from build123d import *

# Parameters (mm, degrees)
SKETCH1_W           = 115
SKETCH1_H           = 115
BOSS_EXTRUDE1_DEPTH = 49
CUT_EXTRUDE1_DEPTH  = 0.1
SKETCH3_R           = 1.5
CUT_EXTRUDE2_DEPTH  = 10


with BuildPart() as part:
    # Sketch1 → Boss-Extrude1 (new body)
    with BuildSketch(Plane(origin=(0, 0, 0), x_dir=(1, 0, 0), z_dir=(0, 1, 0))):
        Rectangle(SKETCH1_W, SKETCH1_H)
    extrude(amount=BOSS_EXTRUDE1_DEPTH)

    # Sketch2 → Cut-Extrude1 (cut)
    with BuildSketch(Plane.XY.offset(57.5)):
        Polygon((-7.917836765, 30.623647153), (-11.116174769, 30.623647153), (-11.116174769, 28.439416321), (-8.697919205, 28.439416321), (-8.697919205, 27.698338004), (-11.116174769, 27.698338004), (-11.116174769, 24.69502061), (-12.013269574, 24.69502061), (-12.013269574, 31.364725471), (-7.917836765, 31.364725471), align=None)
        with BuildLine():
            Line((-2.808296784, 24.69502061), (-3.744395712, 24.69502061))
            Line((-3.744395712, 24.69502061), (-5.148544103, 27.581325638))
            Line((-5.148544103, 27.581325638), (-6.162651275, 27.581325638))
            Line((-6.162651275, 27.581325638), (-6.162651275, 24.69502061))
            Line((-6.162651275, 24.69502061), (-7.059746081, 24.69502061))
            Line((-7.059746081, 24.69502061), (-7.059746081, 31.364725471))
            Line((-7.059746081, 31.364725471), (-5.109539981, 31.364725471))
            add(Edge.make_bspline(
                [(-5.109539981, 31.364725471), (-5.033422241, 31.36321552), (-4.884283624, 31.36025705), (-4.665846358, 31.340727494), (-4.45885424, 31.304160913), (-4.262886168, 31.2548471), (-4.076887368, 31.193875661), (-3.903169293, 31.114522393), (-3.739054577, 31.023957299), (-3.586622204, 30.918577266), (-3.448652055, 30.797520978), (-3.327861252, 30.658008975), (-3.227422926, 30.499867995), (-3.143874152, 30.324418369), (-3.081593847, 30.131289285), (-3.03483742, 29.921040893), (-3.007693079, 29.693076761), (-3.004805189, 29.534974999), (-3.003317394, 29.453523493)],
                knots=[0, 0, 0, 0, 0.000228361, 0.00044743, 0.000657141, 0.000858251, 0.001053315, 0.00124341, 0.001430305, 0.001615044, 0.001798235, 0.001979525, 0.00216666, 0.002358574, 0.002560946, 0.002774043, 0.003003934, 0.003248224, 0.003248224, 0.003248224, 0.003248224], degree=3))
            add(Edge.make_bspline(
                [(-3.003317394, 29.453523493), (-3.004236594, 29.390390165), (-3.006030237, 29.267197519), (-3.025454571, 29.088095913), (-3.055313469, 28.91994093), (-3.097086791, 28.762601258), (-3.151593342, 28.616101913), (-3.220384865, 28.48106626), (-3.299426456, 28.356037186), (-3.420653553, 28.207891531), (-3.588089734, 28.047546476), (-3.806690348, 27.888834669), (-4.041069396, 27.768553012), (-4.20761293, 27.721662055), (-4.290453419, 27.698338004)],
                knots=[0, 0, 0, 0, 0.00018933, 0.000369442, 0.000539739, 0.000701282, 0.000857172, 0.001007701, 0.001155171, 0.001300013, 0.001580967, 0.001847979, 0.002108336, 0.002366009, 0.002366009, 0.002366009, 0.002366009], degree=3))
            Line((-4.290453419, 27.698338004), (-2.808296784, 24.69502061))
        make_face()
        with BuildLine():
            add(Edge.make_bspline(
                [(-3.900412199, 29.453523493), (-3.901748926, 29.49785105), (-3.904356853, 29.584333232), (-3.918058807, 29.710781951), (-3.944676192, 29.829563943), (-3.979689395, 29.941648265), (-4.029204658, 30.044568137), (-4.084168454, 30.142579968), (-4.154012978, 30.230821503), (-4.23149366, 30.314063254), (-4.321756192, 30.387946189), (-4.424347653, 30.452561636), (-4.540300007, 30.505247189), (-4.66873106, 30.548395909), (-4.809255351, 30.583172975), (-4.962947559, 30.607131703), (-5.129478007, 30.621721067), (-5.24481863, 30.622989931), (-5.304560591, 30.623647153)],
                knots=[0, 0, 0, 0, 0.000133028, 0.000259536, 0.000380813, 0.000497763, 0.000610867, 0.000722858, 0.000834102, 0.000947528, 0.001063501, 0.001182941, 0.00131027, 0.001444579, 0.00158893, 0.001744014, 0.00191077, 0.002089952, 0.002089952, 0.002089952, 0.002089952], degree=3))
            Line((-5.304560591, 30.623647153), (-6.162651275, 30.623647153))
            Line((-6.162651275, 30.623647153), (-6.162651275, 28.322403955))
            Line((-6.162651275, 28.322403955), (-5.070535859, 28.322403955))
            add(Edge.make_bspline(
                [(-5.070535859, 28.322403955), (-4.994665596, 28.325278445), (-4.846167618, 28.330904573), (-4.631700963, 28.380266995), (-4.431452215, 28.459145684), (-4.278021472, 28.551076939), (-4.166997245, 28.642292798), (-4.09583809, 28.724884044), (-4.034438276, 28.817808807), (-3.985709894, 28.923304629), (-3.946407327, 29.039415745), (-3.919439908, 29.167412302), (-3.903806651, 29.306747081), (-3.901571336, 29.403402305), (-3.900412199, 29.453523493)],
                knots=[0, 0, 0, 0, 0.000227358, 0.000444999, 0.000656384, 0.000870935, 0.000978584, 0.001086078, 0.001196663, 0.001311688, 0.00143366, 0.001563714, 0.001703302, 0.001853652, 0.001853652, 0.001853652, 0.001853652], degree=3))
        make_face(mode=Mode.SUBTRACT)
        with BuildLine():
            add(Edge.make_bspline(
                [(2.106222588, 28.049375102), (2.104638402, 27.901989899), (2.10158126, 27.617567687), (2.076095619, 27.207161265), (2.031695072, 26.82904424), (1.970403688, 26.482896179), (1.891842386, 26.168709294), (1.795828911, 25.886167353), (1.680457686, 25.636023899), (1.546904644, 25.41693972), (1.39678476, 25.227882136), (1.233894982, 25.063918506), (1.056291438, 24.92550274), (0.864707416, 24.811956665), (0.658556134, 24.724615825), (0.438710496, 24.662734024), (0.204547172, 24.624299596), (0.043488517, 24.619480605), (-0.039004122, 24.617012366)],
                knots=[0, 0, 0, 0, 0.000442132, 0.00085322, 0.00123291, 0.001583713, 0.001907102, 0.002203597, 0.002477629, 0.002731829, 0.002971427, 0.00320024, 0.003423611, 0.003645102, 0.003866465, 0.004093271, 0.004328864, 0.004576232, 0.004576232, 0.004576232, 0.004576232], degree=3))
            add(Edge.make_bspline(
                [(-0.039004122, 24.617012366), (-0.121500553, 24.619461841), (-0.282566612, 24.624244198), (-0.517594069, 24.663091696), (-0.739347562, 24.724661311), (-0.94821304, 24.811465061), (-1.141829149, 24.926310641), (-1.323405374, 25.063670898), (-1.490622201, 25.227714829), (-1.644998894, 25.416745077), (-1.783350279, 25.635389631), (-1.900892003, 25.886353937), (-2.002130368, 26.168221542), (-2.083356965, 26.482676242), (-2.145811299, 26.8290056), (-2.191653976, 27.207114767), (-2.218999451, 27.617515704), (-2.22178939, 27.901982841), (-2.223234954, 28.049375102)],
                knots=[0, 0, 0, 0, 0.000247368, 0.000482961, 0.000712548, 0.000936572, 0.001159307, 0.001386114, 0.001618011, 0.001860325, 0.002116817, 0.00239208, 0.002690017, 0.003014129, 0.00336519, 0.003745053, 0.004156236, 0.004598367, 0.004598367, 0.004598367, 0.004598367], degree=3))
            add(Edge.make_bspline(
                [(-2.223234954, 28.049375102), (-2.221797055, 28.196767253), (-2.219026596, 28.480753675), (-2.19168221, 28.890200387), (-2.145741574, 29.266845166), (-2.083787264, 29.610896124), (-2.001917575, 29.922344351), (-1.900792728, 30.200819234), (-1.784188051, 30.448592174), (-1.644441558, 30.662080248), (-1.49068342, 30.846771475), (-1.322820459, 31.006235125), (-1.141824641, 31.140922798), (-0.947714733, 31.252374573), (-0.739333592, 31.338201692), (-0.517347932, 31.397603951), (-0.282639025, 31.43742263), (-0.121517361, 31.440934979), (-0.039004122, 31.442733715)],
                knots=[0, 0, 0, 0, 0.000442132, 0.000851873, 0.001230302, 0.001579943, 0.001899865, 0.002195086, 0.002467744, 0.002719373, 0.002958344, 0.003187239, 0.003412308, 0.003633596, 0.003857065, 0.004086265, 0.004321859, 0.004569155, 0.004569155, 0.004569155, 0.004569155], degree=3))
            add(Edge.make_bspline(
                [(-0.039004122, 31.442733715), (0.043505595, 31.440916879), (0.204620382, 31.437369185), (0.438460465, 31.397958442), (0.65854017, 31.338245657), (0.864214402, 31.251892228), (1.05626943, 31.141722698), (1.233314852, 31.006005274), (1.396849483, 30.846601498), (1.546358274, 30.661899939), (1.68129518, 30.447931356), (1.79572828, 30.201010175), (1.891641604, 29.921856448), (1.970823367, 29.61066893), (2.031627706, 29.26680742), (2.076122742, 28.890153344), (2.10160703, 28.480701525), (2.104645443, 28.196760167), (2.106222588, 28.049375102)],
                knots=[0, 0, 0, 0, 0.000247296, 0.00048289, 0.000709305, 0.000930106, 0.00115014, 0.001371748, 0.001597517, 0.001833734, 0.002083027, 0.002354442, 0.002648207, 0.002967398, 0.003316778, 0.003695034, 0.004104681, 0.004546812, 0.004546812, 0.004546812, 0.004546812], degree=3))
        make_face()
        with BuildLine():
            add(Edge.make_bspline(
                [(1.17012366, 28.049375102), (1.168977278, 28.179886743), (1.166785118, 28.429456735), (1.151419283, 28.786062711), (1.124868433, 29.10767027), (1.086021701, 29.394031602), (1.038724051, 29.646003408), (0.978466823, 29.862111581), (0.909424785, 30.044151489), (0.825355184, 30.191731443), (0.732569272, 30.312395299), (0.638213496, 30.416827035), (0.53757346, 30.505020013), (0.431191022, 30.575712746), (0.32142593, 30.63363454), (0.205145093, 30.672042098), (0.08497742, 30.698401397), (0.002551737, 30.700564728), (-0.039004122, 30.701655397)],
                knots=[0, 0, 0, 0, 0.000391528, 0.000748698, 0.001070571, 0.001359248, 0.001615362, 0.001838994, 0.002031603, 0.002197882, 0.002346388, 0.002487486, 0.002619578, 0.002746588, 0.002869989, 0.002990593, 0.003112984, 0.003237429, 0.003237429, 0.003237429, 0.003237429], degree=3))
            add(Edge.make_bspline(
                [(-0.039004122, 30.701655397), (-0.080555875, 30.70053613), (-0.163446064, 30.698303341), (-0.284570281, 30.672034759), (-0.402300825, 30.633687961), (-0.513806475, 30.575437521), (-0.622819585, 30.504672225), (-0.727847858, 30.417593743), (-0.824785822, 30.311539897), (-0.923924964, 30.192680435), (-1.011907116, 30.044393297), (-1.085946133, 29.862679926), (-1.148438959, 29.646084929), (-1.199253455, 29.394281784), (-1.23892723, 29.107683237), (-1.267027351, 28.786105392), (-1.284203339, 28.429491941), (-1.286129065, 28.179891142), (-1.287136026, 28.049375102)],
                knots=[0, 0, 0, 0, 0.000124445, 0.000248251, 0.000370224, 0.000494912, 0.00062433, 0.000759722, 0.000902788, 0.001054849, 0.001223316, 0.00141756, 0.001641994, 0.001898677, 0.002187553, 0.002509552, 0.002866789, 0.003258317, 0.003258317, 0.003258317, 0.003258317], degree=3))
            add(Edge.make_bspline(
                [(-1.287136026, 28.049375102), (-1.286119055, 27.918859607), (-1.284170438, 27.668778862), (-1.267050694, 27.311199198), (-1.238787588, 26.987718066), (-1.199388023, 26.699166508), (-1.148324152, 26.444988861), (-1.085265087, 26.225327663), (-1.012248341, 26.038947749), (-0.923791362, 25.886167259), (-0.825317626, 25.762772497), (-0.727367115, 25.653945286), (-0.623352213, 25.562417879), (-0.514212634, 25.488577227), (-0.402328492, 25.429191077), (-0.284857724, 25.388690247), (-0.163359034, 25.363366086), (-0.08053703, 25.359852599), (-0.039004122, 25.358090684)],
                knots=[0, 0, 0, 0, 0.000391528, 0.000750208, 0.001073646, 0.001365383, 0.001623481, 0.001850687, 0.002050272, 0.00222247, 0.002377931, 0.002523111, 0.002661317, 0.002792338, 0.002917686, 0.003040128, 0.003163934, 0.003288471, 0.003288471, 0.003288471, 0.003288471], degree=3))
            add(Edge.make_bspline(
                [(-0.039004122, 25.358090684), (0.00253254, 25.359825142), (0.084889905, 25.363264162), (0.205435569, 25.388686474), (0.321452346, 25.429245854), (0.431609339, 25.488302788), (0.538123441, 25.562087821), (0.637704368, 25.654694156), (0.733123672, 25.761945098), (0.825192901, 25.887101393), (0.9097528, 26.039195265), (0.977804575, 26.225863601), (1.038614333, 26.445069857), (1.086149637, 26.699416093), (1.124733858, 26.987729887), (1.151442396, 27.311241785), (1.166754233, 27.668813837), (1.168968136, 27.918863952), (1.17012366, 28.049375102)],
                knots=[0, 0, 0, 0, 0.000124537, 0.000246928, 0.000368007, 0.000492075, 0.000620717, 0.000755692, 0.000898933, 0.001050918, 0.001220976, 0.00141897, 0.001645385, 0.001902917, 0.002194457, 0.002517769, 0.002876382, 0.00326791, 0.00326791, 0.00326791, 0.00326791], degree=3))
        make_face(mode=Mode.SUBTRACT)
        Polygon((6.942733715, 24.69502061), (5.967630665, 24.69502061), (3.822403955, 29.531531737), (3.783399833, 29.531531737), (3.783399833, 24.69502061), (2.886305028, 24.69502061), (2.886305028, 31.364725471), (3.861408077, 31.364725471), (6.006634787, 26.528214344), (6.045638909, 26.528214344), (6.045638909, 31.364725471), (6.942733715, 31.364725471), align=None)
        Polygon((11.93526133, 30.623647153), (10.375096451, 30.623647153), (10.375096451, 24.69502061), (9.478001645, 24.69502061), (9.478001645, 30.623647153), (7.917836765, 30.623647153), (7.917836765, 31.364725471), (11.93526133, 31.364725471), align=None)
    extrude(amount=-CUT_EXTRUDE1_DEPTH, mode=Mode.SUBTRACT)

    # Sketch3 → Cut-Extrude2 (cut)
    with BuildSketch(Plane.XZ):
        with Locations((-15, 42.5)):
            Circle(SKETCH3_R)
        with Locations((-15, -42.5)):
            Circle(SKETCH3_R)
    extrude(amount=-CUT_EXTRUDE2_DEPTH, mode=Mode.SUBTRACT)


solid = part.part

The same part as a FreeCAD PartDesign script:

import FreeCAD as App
import Part
import Sketcher
from FreeCAD import Vector
Q = App.Units.Quantity

doc = App.newDocument("Part")
body = doc.addObject("PartDesign::Body", "Body")

sketch1 = doc.addObject("Sketcher::SketchObject", "Sketch")
body.addObject(sketch1)
sketch1.AttachmentSupport = (doc.XZ_Plane, [""])
sketch1.MapMode = "FlatFace"
sketch1.addGeometry(Part.LineSegment(Vector(-57.5, -57.5, 0), Vector(-57.5, 57.5, 0)), False)
sketch1.addGeometry(Part.LineSegment(Vector(-57.5, 57.5, 0), Vector(57.5, 57.5, 0)), False)
sketch1.addGeometry(Part.LineSegment(Vector(57.5, 57.5, 0), Vector(57.5, -57.5, 0)), False)
sketch1.addGeometry(Part.LineSegment(Vector(57.5, -57.5, 0), Vector(-57.5, -57.5, 0)), False)
sketch1.addConstraint(Sketcher.Constraint("Coincident", 0, 2, 1, 1))
sketch1.addConstraint(Sketcher.Constraint("Coincident", 1, 2, 2, 1))
sketch1.addConstraint(Sketcher.Constraint("Coincident", 2, 2, 3, 1))
sketch1.addConstraint(Sketcher.Constraint("Coincident", 3, 2, 0, 1))
sketch1.addConstraint(Sketcher.Constraint("Vertical", 0))
sketch1.addConstraint(Sketcher.Constraint("Horizontal", 1))
sketch1.addConstraint(Sketcher.Constraint("Vertical", 2))
sketch1.addConstraint(Sketcher.Constraint("Horizontal", 3))
sketch1.addConstraint(Sketcher.Constraint("Symmetric", 0, 2, 2, 2, -1, 1))
sketch1.addConstraint(Sketcher.Constraint("Equal", 3, 0))
sketch1.addConstraint(Sketcher.Constraint("DistanceX", 1, 1, 1, 2, Q("115 mm")))
pad1 = doc.addObject("PartDesign::Pad", "Pad")
body.addObject(pad1)
pad1.Profile = sketch1
pad1.Length = 49
pad1.Reversed = True

sketch2 = doc.addObject("Sketcher::SketchObject", "Sketch001")
body.addObject(sketch2)
sketch2.AttachmentSupport = (doc.XY_Plane, [""])
sketch2.MapMode = "FlatFace"
sketch2.AttachmentOffset = App.Placement(Vector(0, 0, 57.5), App.Rotation())
sketch2.addGeometry(Part.LineSegment(Vector(-11.116175, 30.623647, 0), Vector(-7.917837, 30.623647, 0)), False)
sketch2.addGeometry(Part.LineSegment(Vector(-7.917837, 30.623647, 0), Vector(-7.917837, 31.364725, 0)), False)
sketch2.addGeometry(Part.LineSegment(Vector(-7.917837, 31.364725, 0), Vector(-12.01327, 31.364725, 0)), False)
sketch2.addGeometry(Part.LineSegment(Vector(-12.01327, 31.364725, 0), Vector(-12.01327, 24.695021, 0)), False)
sketch2.addGeometry(Part.LineSegment(Vector(-12.01327, 24.695021, 0), Vector(-11.116175, 24.695021, 0)), False)
sketch2.addGeometry(Part.LineSegment(Vector(-11.116175, 24.695021, 0), Vector(-11.116175, 27.698338, 0)), False)
sketch2.addGeometry(Part.LineSegment(Vector(-11.116175, 27.698338, 0), Vector(-8.697919, 27.698338, 0)), False)
sketch2.addGeometry(Part.LineSegment(Vector(-8.697919, 27.698338, 0), Vector(-8.697919, 28.439416, 0)), False)
sketch2.addGeometry(Part.LineSegment(Vector(-8.697919, 28.439416, 0), Vector(-11.116175, 28.439416, 0)), False)
sketch2.addGeometry(Part.LineSegment(Vector(-11.116175, 28.439416, 0), Vector(-11.116175, 30.623647, 0)), False)
sketch2.addGeometry(Part.LineSegment(Vector(-3.744396, 24.695021, 0), Vector(-2.808297, 24.695021, 0)), False)
sketch2.addGeometry(Part.LineSegment(Vector(-2.808297, 24.695021, 0), Vector(-4.290453, 27.698338, 0)), False)
sketch2.addGeometry(Part.BSplineCurve([Vector(-3.003317, 29.453523, 0), Vector(-3.004237, 29.39039, 0), Vector(-3.00603, 29.267198, 0), Vector(-3.025455, 29.088096, 0), Vector(-3.055313, 28.919941, 0), Vector(-3.097087, 28.762601, 0), Vector(-3.151593, 28.616102, 0), Vector(-3.220385, 28.481066, 0), Vector(-3.299426, 28.356037, 0), Vector(-3.420654, 28.207892, 0), Vector(-3.58809, 28.047546, 0), Vector(-3.80669, 27.888835, 0), Vector(-4.041069, 27.768553, 0), Vector(-4.207613, 27.721662, 0), Vector(-4.290453, 27.698338, 0)], [4, 1, 1, 1, 1, 1, 1, 1, 1, 1, 1, 1, 4], [0, 0.00018933, 0.000369442, 0.000539739, 0.000701282, 0.000857172, 0.001007701, 0.001155171, 0.001300013, 0.001580967, 0.001847979, 0.002108336, 0.002366009], False, 3, [1, 1, 1, 1, 1, 1, 1, 1, 1, 1, 1, 1, 1, 1, 1], False), False)
sketch2.addGeometry(Part.BSplineCurve([Vector(-5.10954, 31.364725, 0), Vector(-5.033422, 31.363216, 0), Vector(-4.884284, 31.360257, 0), Vector(-4.665846, 31.340727, 0), Vector(-4.458854, 31.304161, 0), Vector(-4.262886, 31.254847, 0), Vector(-4.076887, 31.193876, 0), Vector(-3.903169, 31.114522, 0), Vector(-3.739055, 31.023957, 0), Vector(-3.586622, 30.918577, 0), Vector(-3.448652, 30.797521, 0), Vector(-3.327861, 30.658009, 0), Vector(-3.227423, 30.499868, 0), Vector(-3.143874, 30.324418, 0), Vector(-3.081594, 30.131289, 0), Vector(-3.034837, 29.921041, 0), Vector(-3.007693, 29.693077, 0), Vector(-3.004805, 29.534975, 0), Vector(-3.003317, 29.453523, 0)], [4, 1, 1, 1, 1, 1, 1, 1, 1, 1, 1, 1, 1, 1, 1, 1, 4], [0, 0.000228361, 0.00044743, 0.000657141, 0.000858251, 0.001053315, 0.00124341, 0.001430305, 0.001615044, 0.001798235, 0.001979525, 0.00216666, 0.002358574, 0.002560946, 0.002774043, 0.003003934, 0.003248224], False, 3, [1, 1, 1, 1, 1, 1, 1, 1, 1, 1, 1, 1, 1, 1, 1, 1, 1, 1, 1], False), False)
sketch2.addGeometry(Part.LineSegment(Vector(-5.10954, 31.364725, 0), Vector(-7.059746, 31.364725, 0)), False)
sketch2.addGeometry(Part.LineSegment(Vector(-7.059746, 31.364725, 0), Vector(-7.059746, 24.695021, 0)), False)
sketch2.addGeometry(Part.LineSegment(Vector(-7.059746, 24.695021, 0), Vector(-6.162651, 24.695021, 0)), False)
sketch2.addGeometry(Part.LineSegment(Vector(-6.162651, 24.695021, 0), Vector(-6.162651, 27.581326, 0)), False)
sketch2.addGeometry(Part.LineSegment(Vector(-6.162651, 27.581326, 0), Vector(-5.148544, 27.581326, 0)), False)
sketch2.addGeometry(Part.LineSegment(Vector(-5.148544, 27.581326, 0), Vector(-3.744396, 24.695021, 0)), False)
sketch2.addGeometry(Part.BSplineCurve([Vector(-5.070536, 28.322404, 0), Vector(-4.994666, 28.325278, 0), Vector(-4.846168, 28.330905, 0), Vector(-4.631701, 28.380267, 0), Vector(-4.431452, 28.459146, 0), Vector(-4.278021, 28.551077, 0), Vector(-4.166997, 28.642293, 0), Vector(-4.095838, 28.724884, 0), Vector(-4.034438, 28.817809, 0), Vector(-3.98571, 28.923305, 0), Vector(-3.946407, 29.039416, 0), Vector(-3.91944, 29.167412, 0), Vector(-3.903807, 29.306747, 0), Vector(-3.901571, 29.403402, 0), Vector(-3.900412, 29.453523, 0)], [4, 1, 1, 1, 1, 1, 1, 1, 1, 1, 1, 1, 4], [0, 0.000227358, 0.000444999, 0.000656384, 0.000870935, 0.000978584, 0.001086078, 0.001196663, 0.001311688, 0.00143366, 0.001563714, 0.001703302, 0.001853652], False, 3, [1, 1, 1, 1, 1, 1, 1, 1, 1, 1, 1, 1, 1, 1, 1], False), False)
sketch2.addGeometry(Part.LineSegment(Vector(-5.070536, 28.322404, 0), Vector(-6.162651, 28.322404, 0)), False)
sketch2.addGeometry(Part.LineSegment(Vector(-6.162651, 28.322404, 0), Vector(-6.162651, 30.623647, 0)), False)
sketch2.addGeometry(Part.LineSegment(Vector(-6.162651, 30.623647, 0), Vector(-5.304561, 30.623647, 0)), False)
sketch2.addGeometry(Part.BSplineCurve([Vector(-3.900412, 29.453523, 0), Vector(-3.901749, 29.497851, 0), Vector(-3.904357, 29.584333, 0), Vector(-3.918059, 29.710782, 0), Vector(-3.944676, 29.829564, 0), Vector(-3.979689, 29.941648, 0), Vector(-4.029205, 30.044568, 0), Vector(-4.084168, 30.14258, 0), Vector(-4.154013, 30.230822, 0), Vector(-4.231494, 30.314063, 0), Vector(-4.321756, 30.387946, 0), Vector(-4.424348, 30.452562, 0), Vector(-4.5403, 30.505247, 0), Vector(-4.668731, 30.548396, 0), Vector(-4.809255, 30.583173, 0), Vector(-4.962948, 30.607132, 0), Vector(-5.129478, 30.621721, 0), Vector(-5.244819, 30.62299, 0), Vector(-5.304561, 30.623647, 0)], [4, 1, 1, 1, 1, 1, 1, 1, 1, 1, 1, 1, 1, 1, 1, 1, 4], [0, 0.000133028, 0.000259536, 0.000380813, 0.000497763, 0.000610867, 0.000722858, 0.000834102, 0.000947528, 0.001063501, 0.001182941, 0.00131027, 0.001444579, 0.00158893, 0.001744014, 0.00191077, 0.002089952], False, 3, [1, 1, 1, 1, 1, 1, 1, 1, 1, 1, 1, 1, 1, 1, 1, 1, 1, 1, 1], False), False)
sketch2.addGeometry(Part.BSplineCurve([Vector(2.106223, 28.049375, 0), Vector(2.104638, 27.90199, 0), Vector(2.101581, 27.617568, 0), Vector(2.076096, 27.207161, 0), Vector(2.031695, 26.829044, 0), Vector(1.970404, 26.482896, 0), Vector(1.891842, 26.168709, 0), Vector(1.795829, 25.886167, 0), Vector(1.680458, 25.636024, 0), Vector(1.546905, 25.41694, 0), Vector(1.396785, 25.227882, 0), Vector(1.233895, 25.063919, 0), Vector(1.056291, 24.925503, 0), Vector(0.864707, 24.811957, 0), Vector(0.658556, 24.724616, 0), Vector(0.43871, 24.662734, 0), Vector(0.204547, 24.6243, 0), Vector(0.043489, 24.619481, 0), Vector(-0.039004, 24.617012, 0)], [4, 1, 1, 1, 1, 1, 1, 1, 1, 1, 1, 1, 1, 1, 1, 1, 4], [0, 0.000442132, 0.00085322, 0.00123291, 0.001583713, 0.001907102, 0.002203597, 0.002477629, 0.002731829, 0.002971427, 0.00320024, 0.003423611, 0.003645102, 0.003866465, 0.004093271, 0.004328864, 0.004576232], False, 3, [1, 1, 1, 1, 1, 1, 1, 1, 1, 1, 1, 1, 1, 1, 1, 1, 1, 1, 1], False), False)
sketch2.addGeometry(Part.BSplineCurve([Vector(-0.039004, 31.442734, 0), Vector(0.043506, 31.440917, 0), Vector(0.20462, 31.437369, 0), Vector(0.43846, 31.397958, 0), Vector(0.65854, 31.338246, 0), Vector(0.864214, 31.251892, 0), Vector(1.056269, 31.141723, 0), Vector(1.233315, 31.006005, 0), Vector(1.396849, 30.846601, 0), Vector(1.546358, 30.6619, 0), Vector(1.681295, 30.447931, 0), Vector(1.795728, 30.20101, 0), Vector(1.891642, 29.921856, 0), Vector(1.970823, 29.610669, 0), Vector(2.031628, 29.266807, 0), Vector(2.076123, 28.890153, 0), Vector(2.101607, 28.480702, 0), Vector(2.104645, 28.19676, 0), Vector(2.106223, 28.049375, 0)], [4, 1, 1, 1, 1, 1, 1, 1, 1, 1, 1, 1, 1, 1, 1, 1, 4], [0, 0.000247296, 0.00048289, 0.000709305, 0.000930106, 0.00115014, 0.001371748, 0.001597517, 0.001833734, 0.002083027, 0.002354442, 0.002648207, 0.002967398, 0.003316778, 0.003695034, 0.004104681, 0.004546812], False, 3, [1, 1, 1, 1, 1, 1, 1, 1, 1, 1, 1, 1, 1, 1, 1, 1, 1, 1, 1], False), False)
sketch2.addGeometry(Part.BSplineCurve([Vector(-2.223235, 28.049375, 0), Vector(-2.221797, 28.196767, 0), Vector(-2.219027, 28.480754, 0), Vector(-2.191682, 28.8902, 0), Vector(-2.145742, 29.266845, 0), Vector(-2.083787, 29.610896, 0), Vector(-2.001918, 29.922344, 0), Vector(-1.900793, 30.200819, 0), Vector(-1.784188, 30.448592, 0), Vector(-1.644442, 30.66208, 0), Vector(-1.490683, 30.846771, 0), Vector(-1.32282, 31.006235, 0), Vector(-1.141825, 31.140923, 0), Vector(-0.947715, 31.252375, 0), Vector(-0.739334, 31.338202, 0), Vector(-0.517348, 31.397604, 0), Vector(-0.282639, 31.437423, 0), Vector(-0.121517, 31.440935, 0), Vector(-0.039004, 31.442734, 0)], [4, 1, 1, 1, 1, 1, 1, 1, 1, 1, 1, 1, 1, 1, 1, 1, 4], [0, 0.000442132, 0.000851873, 0.001230302, 0.001579943, 0.001899865, 0.002195086, 0.002467744, 0.002719373, 0.002958344, 0.003187239, 0.003412308, 0.003633596, 0.003857065, 0.004086265, 0.004321859, 0.004569155], False, 3, [1, 1, 1, 1, 1, 1, 1, 1, 1, 1, 1, 1, 1, 1, 1, 1, 1, 1, 1], False), False)
sketch2.addGeometry(Part.BSplineCurve([Vector(-0.039004, 24.617012, 0), Vector(-0.121501, 24.619462, 0), Vector(-0.282567, 24.624244, 0), Vector(-0.517594, 24.663092, 0), Vector(-0.739348, 24.724661, 0), Vector(-0.948213, 24.811465, 0), Vector(-1.141829, 24.926311, 0), Vector(-1.323405, 25.063671, 0), Vector(-1.490622, 25.227715, 0), Vector(-1.644999, 25.416745, 0), Vector(-1.78335, 25.63539, 0), Vector(-1.900892, 25.886354, 0), Vector(-2.00213, 26.168222, 0), Vector(-2.083357, 26.482676, 0), Vector(-2.145811, 26.829006, 0), Vector(-2.191654, 27.207115, 0), Vector(-2.218999, 27.617516, 0), Vector(-2.221789, 27.901983, 0), Vector(-2.223235, 28.049375, 0)], [4, 1, 1, 1, 1, 1, 1, 1, 1, 1, 1, 1, 1, 1, 1, 1, 4], [0, 0.000247368, 0.000482961, 0.000712548, 0.000936572, 0.001159307, 0.001386114, 0.001618011, 0.001860325, 0.002116817, 0.00239208, 0.002690017, 0.003014129, 0.00336519, 0.003745053, 0.004156236, 0.004598367], False, 3, [1, 1, 1, 1, 1, 1, 1, 1, 1, 1, 1, 1, 1, 1, 1, 1, 1, 1, 1], False), False)
sketch2.addGeometry(Part.BSplineCurve([Vector(-0.039004, 25.358091, 0), Vector(0.002533, 25.359825, 0), Vector(0.08489, 25.363264, 0), Vector(0.205436, 25.388686, 0), Vector(0.321452, 25.429246, 0), Vector(0.431609, 25.488303, 0), Vector(0.538123, 25.562088, 0), Vector(0.637704, 25.654694, 0), Vector(0.733124, 25.761945, 0), Vector(0.825193, 25.887101, 0), Vector(0.909753, 26.039195, 0), Vector(0.977805, 26.225864, 0), Vector(1.038614, 26.44507, 0), Vector(1.08615, 26.699416, 0), Vector(1.124734, 26.98773, 0), Vector(1.151442, 27.311242, 0), Vector(1.166754, 27.668814, 0), Vector(1.168968, 27.918864, 0), Vector(1.170124, 28.049375, 0)], [4, 1, 1, 1, 1, 1, 1, 1, 1, 1, 1, 1, 1, 1, 1, 1, 4], [0, 0.000124537, 0.000246928, 0.000368007, 0.000492075, 0.000620717, 0.000755692, 0.000898933, 0.001050918, 0.001220976, 0.00141897, 0.001645385, 0.001902917, 0.002194457, 0.002517769, 0.002876382, 0.00326791], False, 3, [1, 1, 1, 1, 1, 1, 1, 1, 1, 1, 1, 1, 1, 1, 1, 1, 1, 1, 1], False), False)
sketch2.addGeometry(Part.BSplineCurve([Vector(-1.287136, 28.049375, 0), Vector(-1.286119, 27.91886, 0), Vector(-1.28417, 27.668779, 0), Vector(-1.267051, 27.311199, 0), Vector(-1.238788, 26.987718, 0), Vector(-1.199388, 26.699167, 0), Vector(-1.148324, 26.444989, 0), Vector(-1.085265, 26.225328, 0), Vector(-1.012248, 26.038948, 0), Vector(-0.923791, 25.886167, 0), Vector(-0.825318, 25.762772, 0), Vector(-0.727367, 25.653945, 0), Vector(-0.623352, 25.562418, 0), Vector(-0.514213, 25.488577, 0), Vector(-0.402328, 25.429191, 0), Vector(-0.284858, 25.38869, 0), Vector(-0.163359, 25.363366, 0), Vector(-0.080537, 25.359853, 0), Vector(-0.039004, 25.358091, 0)], [4, 1, 1, 1, 1, 1, 1, 1, 1, 1, 1, 1, 1, 1, 1, 1, 4], [0, 0.000391528, 0.000750208, 0.001073646, 0.001365383, 0.001623481, 0.001850687, 0.002050272, 0.00222247, 0.002377931, 0.002523111, 0.002661317, 0.002792338, 0.002917686, 0.003040128, 0.003163934, 0.003288471], False, 3, [1, 1, 1, 1, 1, 1, 1, 1, 1, 1, 1, 1, 1, 1, 1, 1, 1, 1, 1], False), False)
sketch2.addGeometry(Part.BSplineCurve([Vector(-0.039004, 30.701655, 0), Vector(-0.080556, 30.700536, 0), Vector(-0.163446, 30.698303, 0), Vector(-0.28457, 30.672035, 0), Vector(-0.402301, 30.633688, 0), Vector(-0.513806, 30.575438, 0), Vector(-0.62282, 30.504672, 0), Vector(-0.727848, 30.417594, 0), Vector(-0.824786, 30.31154, 0), Vector(-0.923925, 30.19268, 0), Vector(-1.011907, 30.044393, 0), Vector(-1.085946, 29.86268, 0), Vector(-1.148439, 29.646085, 0), Vector(-1.199253, 29.394282, 0), Vector(-1.238927, 29.107683, 0), Vector(-1.267027, 28.786105, 0), Vector(-1.284203, 28.429492, 0), Vector(-1.286129, 28.179891, 0), Vector(-1.287136, 28.049375, 0)], [4, 1, 1, 1, 1, 1, 1, 1, 1, 1, 1, 1, 1, 1, 1, 1, 4], [0, 0.000124445, 0.000248251, 0.000370224, 0.000494912, 0.00062433, 0.000759722, 0.000902788, 0.001054849, 0.001223316, 0.00141756, 0.001641994, 0.001898677, 0.002187553, 0.002509552, 0.002866789, 0.003258317], False, 3, [1, 1, 1, 1, 1, 1, 1, 1, 1, 1, 1, 1, 1, 1, 1, 1, 1, 1, 1], False), False)
sketch2.addGeometry(Part.BSplineCurve([Vector(1.170124, 28.049375, 0), Vector(1.168977, 28.179887, 0), Vector(1.166785, 28.429457, 0), Vector(1.151419, 28.786063, 0), Vector(1.124868, 29.10767, 0), Vector(1.086022, 29.394032, 0), Vector(1.038724, 29.646003, 0), Vector(0.978467, 29.862112, 0), Vector(0.909425, 30.044151, 0), Vector(0.825355, 30.191731, 0), Vector(0.732569, 30.312395, 0), Vector(0.638213, 30.416827, 0), Vector(0.537573, 30.50502, 0), Vector(0.431191, 30.575713, 0), Vector(0.321426, 30.633635, 0), Vector(0.205145, 30.672042, 0), Vector(0.084977, 30.698401, 0), Vector(0.002552, 30.700565, 0), Vector(-0.039004, 30.701655, 0)], [4, 1, 1, 1, 1, 1, 1, 1, 1, 1, 1, 1, 1, 1, 1, 1, 4], [0, 0.000391528, 0.000748698, 0.001070571, 0.001359248, 0.001615362, 0.001838994, 0.002031603, 0.002197882, 0.002346388, 0.002487486, 0.002619578, 0.002746588, 0.002869989, 0.002990593, 0.003112984, 0.003237429], False, 3, [1, 1, 1, 1, 1, 1, 1, 1, 1, 1, 1, 1, 1, 1, 1, 1, 1, 1, 1], False), False)
sketch2.addGeometry(Part.LineSegment(Vector(5.967631, 24.695021, 0), Vector(6.942734, 24.695021, 0)), False)
sketch2.addGeometry(Part.LineSegment(Vector(6.942734, 24.695021, 0), Vector(6.942734, 31.364725, 0)), False)
sketch2.addGeometry(Part.LineSegment(Vector(6.942734, 31.364725, 0), Vector(6.045639, 31.364725, 0)), False)
sketch2.addGeometry(Part.LineSegment(Vector(6.045639, 31.364725, 0), Vector(6.045639, 26.528214, 0)), False)
sketch2.addGeometry(Part.LineSegment(Vector(6.045639, 26.528214, 0), Vector(6.006635, 26.528214, 0)), False)
sketch2.addGeometry(Part.LineSegment(Vector(6.006635, 26.528214, 0), Vector(3.861408, 31.364725, 0)), False)
sketch2.addGeometry(Part.LineSegment(Vector(3.861408, 31.364725, 0), Vector(2.886305, 31.364725, 0)), False)
sketch2.addGeometry(Part.LineSegment(Vector(2.886305, 31.364725, 0), Vector(2.886305, 24.695021, 0)), False)
sketch2.addGeometry(Part.LineSegment(Vector(2.886305, 24.695021, 0), Vector(3.7834, 24.695021, 0)), False)
sketch2.addGeometry(Part.LineSegment(Vector(3.7834, 24.695021, 0), Vector(3.7834, 29.531532, 0)), False)
sketch2.addGeometry(Part.LineSegment(Vector(3.7834, 29.531532, 0), Vector(3.822404, 29.531532, 0)), False)
sketch2.addGeometry(Part.LineSegment(Vector(3.822404, 29.531532, 0), Vector(5.967631, 24.695021, 0)), False)
sketch2.addGeometry(Part.LineSegment(Vector(10.375096, 30.623647, 0), Vector(11.935261, 30.623647, 0)), False)
sketch2.addGeometry(Part.LineSegment(Vector(11.935261, 30.623647, 0), Vector(11.935261, 31.364725, 0)), False)
sketch2.addGeometry(Part.LineSegment(Vector(11.935261, 31.364725, 0), Vector(7.917837, 31.364725, 0)), False)
sketch2.addGeometry(Part.LineSegment(Vector(7.917837, 31.364725, 0), Vector(7.917837, 30.623647, 0)), False)
sketch2.addGeometry(Part.LineSegment(Vector(7.917837, 30.623647, 0), Vector(9.478002, 30.623647, 0)), False)
sketch2.addGeometry(Part.LineSegment(Vector(9.478002, 30.623647, 0), Vector(9.478002, 24.695021, 0)), False)
sketch2.addGeometry(Part.LineSegment(Vector(9.478002, 24.695021, 0), Vector(10.375096, 24.695021, 0)), False)
sketch2.addGeometry(Part.LineSegment(Vector(10.375096, 24.695021, 0), Vector(10.375096, 30.623647, 0)), False)
sketch2.addConstraint(Sketcher.Constraint("Block", 12))
sketch2.addConstraint(Sketcher.Constraint("Block", 13))
sketch2.addConstraint(Sketcher.Constraint("Block", 20))
sketch2.addConstraint(Sketcher.Constraint("Block", 24))
sketch2.addConstraint(Sketcher.Constraint("Block", 25))
sketch2.addConstraint(Sketcher.Constraint("Block", 26))
sketch2.addConstraint(Sketcher.Constraint("Block", 27))
sketch2.addConstraint(Sketcher.Constraint("Block", 28))
sketch2.addConstraint(Sketcher.Constraint("Block", 29))
sketch2.addConstraint(Sketcher.Constraint("Block", 30))
sketch2.addConstraint(Sketcher.Constraint("Block", 31))
sketch2.addConstraint(Sketcher.Constraint("Block", 32))
sketch2.addConstraint(Sketcher.Constraint("Coincident", 0, 2, 1, 1))
sketch2.addConstraint(Sketcher.Constraint("Coincident", 1, 2, 2, 1))
sketch2.addConstraint(Sketcher.Constraint("Coincident", 2, 2, 3, 1))
sketch2.addConstraint(Sketcher.Constraint("Coincident", 3, 2, 4, 1))
sketch2.addConstraint(Sketcher.Constraint("Coincident", 4, 2, 5, 1))
sketch2.addConstraint(Sketcher.Constraint("Coincident", 5, 2, 6, 1))
sketch2.addConstraint(Sketcher.Constraint("Coincident", 6, 2, 7, 1))
sketch2.addConstraint(Sketcher.Constraint("Coincident", 7, 2, 8, 1))
sketch2.addConstraint(Sketcher.Constraint("Coincident", 8, 2, 9, 1))
sketch2.addConstraint(Sketcher.Constraint("Coincident", 9, 2, 0, 1))
sketch2.addConstraint(Sketcher.Constraint("Coincident", 10, 2, 11, 1))
sketch2.addConstraint(Sketcher.Constraint("Coincident", 11, 2, 12, 2))
sketch2.addConstraint(Sketcher.Constraint("Coincident", 13, 1, 14, 1))
sketch2.addConstraint(Sketcher.Constraint("Coincident", 14, 2, 15, 1))
sketch2.addConstraint(Sketcher.Constraint("Coincident", 15, 2, 16, 1))
sketch2.addConstraint(Sketcher.Constraint("Coincident", 16, 2, 17, 1))
sketch2.addConstraint(Sketcher.Constraint("Coincident", 17, 2, 18, 1))
sketch2.addConstraint(Sketcher.Constraint("Coincident", 18, 2, 19, 1))
sketch2.addConstraint(Sketcher.Constraint("Coincident", 19, 2, 10, 1))
sketch2.addConstraint(Sketcher.Constraint("Coincident", 20, 1, 21, 1))
sketch2.addConstraint(Sketcher.Constraint("Coincident", 21, 2, 22, 1))
sketch2.addConstraint(Sketcher.Constraint("Coincident", 22, 2, 23, 1))
sketch2.addConstraint(Sketcher.Constraint("Coincident", 23, 2, 24, 2))
sketch2.addConstraint(Sketcher.Constraint("Coincident", 33, 2, 34, 1))
sketch2.addConstraint(Sketcher.Constraint("Coincident", 34, 2, 35, 1))
sketch2.addConstraint(Sketcher.Constraint("Coincident", 35, 2, 36, 1))
sketch2.addConstraint(Sketcher.Constraint("Coincident", 36, 2, 37, 1))
sketch2.addConstraint(Sketcher.Constraint("Coincident", 37, 2, 38, 1))
sketch2.addConstraint(Sketcher.Constraint("Coincident", 38, 2, 39, 1))
sketch2.addConstraint(Sketcher.Constraint("Coincident", 39, 2, 40, 1))
sketch2.addConstraint(Sketcher.Constraint("Coincident", 40, 2, 41, 1))
sketch2.addConstraint(Sketcher.Constraint("Coincident", 41, 2, 42, 1))
sketch2.addConstraint(Sketcher.Constraint("Coincident", 42, 2, 43, 1))
sketch2.addConstraint(Sketcher.Constraint("Coincident", 43, 2, 44, 1))
sketch2.addConstraint(Sketcher.Constraint("Coincident", 44, 2, 33, 1))
sketch2.addConstraint(Sketcher.Constraint("Coincident", 45, 2, 46, 1))
sketch2.addConstraint(Sketcher.Constraint("Coincident", 46, 2, 47, 1))
sketch2.addConstraint(Sketcher.Constraint("Coincident", 47, 2, 48, 1))
sketch2.addConstraint(Sketcher.Constraint("Coincident", 48, 2, 49, 1))
sketch2.addConstraint(Sketcher.Constraint("Coincident", 49, 2, 50, 1))
sketch2.addConstraint(Sketcher.Constraint("Coincident", 50, 2, 51, 1))
sketch2.addConstraint(Sketcher.Constraint("Coincident", 51, 2, 52, 1))
sketch2.addConstraint(Sketcher.Constraint("Coincident", 52, 2, 45, 1))
sketch2.addConstraint(Sketcher.Constraint("Horizontal", 0))
sketch2.addConstraint(Sketcher.Constraint("Vertical", 1))
sketch2.addConstraint(Sketcher.Constraint("Horizontal", 2))
sketch2.addConstraint(Sketcher.Constraint("Vertical", 3))
sketch2.addConstraint(Sketcher.Constraint("Horizontal", 4))
sketch2.addConstraint(Sketcher.Constraint("Vertical", 5))
sketch2.addConstraint(Sketcher.Constraint("Horizontal", 6))
sketch2.addConstraint(Sketcher.Constraint("Vertical", 7))
sketch2.addConstraint(Sketcher.Constraint("Horizontal", 8))
sketch2.addConstraint(Sketcher.Constraint("Vertical", 9))
sketch2.addConstraint(Sketcher.Constraint("Horizontal", 10))
sketch2.addConstraint(Sketcher.Constraint("Horizontal", 14))
sketch2.addConstraint(Sketcher.Constraint("Vertical", 15))
sketch2.addConstraint(Sketcher.Constraint("Horizontal", 16))
sketch2.addConstraint(Sketcher.Constraint("Vertical", 17))
sketch2.addConstraint(Sketcher.Constraint("Horizontal", 18))
sketch2.addConstraint(Sketcher.Constraint("Horizontal", 21))
sketch2.addConstraint(Sketcher.Constraint("Vertical", 22))
sketch2.addConstraint(Sketcher.Constraint("Horizontal", 23))
sketch2.addConstraint(Sketcher.Constraint("Horizontal", 33))
sketch2.addConstraint(Sketcher.Constraint("Vertical", 34))
sketch2.addConstraint(Sketcher.Constraint("Horizontal", 35))
sketch2.addConstraint(Sketcher.Constraint("Vertical", 36))
sketch2.addConstraint(Sketcher.Constraint("Horizontal", 37))
sketch2.addConstraint(Sketcher.Constraint("Horizontal", 39))
sketch2.addConstraint(Sketcher.Constraint("Vertical", 40))
sketch2.addConstraint(Sketcher.Constraint("Horizontal", 41))
sketch2.addConstraint(Sketcher.Constraint("Vertical", 42))
sketch2.addConstraint(Sketcher.Constraint("Horizontal", 43))
sketch2.addConstraint(Sketcher.Constraint("Horizontal", 45))
sketch2.addConstraint(Sketcher.Constraint("Vertical", 46))
sketch2.addConstraint(Sketcher.Constraint("Horizontal", 47))
sketch2.addConstraint(Sketcher.Constraint("Vertical", 48))
sketch2.addConstraint(Sketcher.Constraint("Horizontal", 49))
sketch2.addConstraint(Sketcher.Constraint("Vertical", 50))
sketch2.addConstraint(Sketcher.Constraint("Horizontal", 51))
sketch2.addConstraint(Sketcher.Constraint("Vertical", 52))
sketch2.addConstraint(Sketcher.Constraint("Symmetric", 1, 2, 47, 2, -2))
sketch2.addConstraint(Sketcher.Constraint("Parallel", 38, 44))
sketch2.addConstraint(Sketcher.Constraint("Horizontal", 4, 2, 10, 2))
sketch2.addConstraint(Sketcher.Constraint("Horizontal", 6, 2, 11, 2))
sketch2.addConstraint(Sketcher.Constraint("Horizontal", 2, 2, 14, 2))
sketch2.addConstraint(Sketcher.Constraint("Horizontal", 10, 2, 15, 2))
sketch2.addConstraint(Sketcher.Constraint("Horizontal", 9, 2, 22, 2))
sketch2.addConstraint(Sketcher.Constraint("Horizontal", 19, 2, 33, 2))
sketch2.addConstraint(Sketcher.Constraint("Horizontal", 14, 2, 34, 2))
sketch2.addConstraint(Sketcher.Constraint("Horizontal", 35, 2, 38, 2))
sketch2.addConstraint(Sketcher.Constraint("Horizontal", 33, 2, 40, 2))
sketch2.addConstraint(Sketcher.Constraint("Horizontal", 23, 2, 45, 2))
sketch2.addConstraint(Sketcher.Constraint("Horizontal", 45, 2, 48, 2))
sketch2.addConstraint(Sketcher.Constraint("Horizontal", 44, 2, 50, 2))
sketch2.addConstraint(Sketcher.Constraint("Vertical", 5, 2, 8, 2))
sketch2.addConstraint(Sketcher.Constraint("Vertical", 17, 2, 21, 2))
sketch2.addConstraint(Sketcher.Constraint("Equal", 4, 16))
sketch2.addConstraint(Sketcher.Constraint("Equal", 16, 35))
sketch2.addConstraint(Sketcher.Constraint("Equal", 33, 39))
sketch2.addConstraint(Sketcher.Constraint("Equal", 35, 41))
sketch2.addConstraint(Sketcher.Constraint("Equal", 37, 43))
sketch2.addConstraint(Sketcher.Constraint("Equal", 45, 49))
sketch2.addConstraint(Sketcher.Constraint("Equal", 41, 51))
sketch2.addConstraint(Sketcher.Constraint("Equal", 1, 7))
sketch2.addConstraint(Sketcher.Constraint("DistanceX", 10, 1, 10, 2, Q("0.936099 mm")))
sketch2.addConstraint(Sketcher.Constraint("DistanceX", -1, 1, 49, 2, Q("9.478002 mm")))
sketch2.addConstraint(Sketcher.Constraint("DistanceX", 0, 1, 0, 2, Q("3.198338 mm")))
sketch2.addConstraint(Sketcher.Constraint("DistanceX", 23, 1, 23, 2, Q("0.858091 mm")))
sketch2.addConstraint(Sketcher.Constraint("DistanceY", 36, 2, 36, 1, Q("4.836511 mm")))
sketch2.addConstraint(Sketcher.Constraint("DistanceX", -1, 1, 41, 2, Q("3.7834 mm")))
sketch2.addConstraint(Sketcher.Constraint("DistanceX", 15, 2, 18, 2, Q("1.911202 mm")))
sketch2.addConstraint(Sketcher.Constraint("DistanceX", 23, 2, 35, 2, Q("11.3502 mm")))
sketch2.addConstraint(Sketcher.Constraint("DistanceX", 37, 2, 33, 2, Q("0.936099 mm")))
sketch2.addConstraint(Sketcher.Constraint("DistanceX", 10, 2, 40, 2, Q("5.694602 mm")))
sketch2.addConstraint(Sketcher.Constraint("Distance", 38, Q("5.29092 mm")))
sketch2.addConstraint(Sketcher.Constraint("DistanceX", 2, 2, 2, 1, Q("4.095433 mm")))
sketch2.addConstraint(Sketcher.Constraint("DistanceX", 6, 1, 6, 2, Q("2.418256 mm")))
sketch2.addConstraint(Sketcher.Constraint("DistanceX", 45, 1, 45, 2, Q("1.560165 mm")))
sketch2.addConstraint(Sketcher.Constraint("DistanceY", 3, 2, 3, 1, Q("6.669705 mm")))
sketch2.addConstraint(Sketcher.Constraint("DistanceY", 17, 1, 17, 2, Q("2.886305 mm")))
pocket1 = doc.addObject("PartDesign::Pocket", "Pocket")
body.addObject(pocket1)
pocket1.Profile = sketch2
pocket1.Length = 0.1

sketch3 = doc.addObject("Sketcher::SketchObject", "Sketch002")
body.addObject(sketch3)
sketch3.AttachmentSupport = (doc.XZ_Plane, [""])
sketch3.MapMode = "FlatFace"
sketch3.addGeometry(Part.Circle(Vector(-15, 42.5, 0), Vector(0, 0, 1), 1.5), False)
sketch3.addGeometry(Part.Circle(Vector(-15, -42.5, 0), Vector(0, 0, 1), 1.5), False)
sketch3.addConstraint(Sketcher.Constraint("Equal", 0, 1))
sketch3.addConstraint(Sketcher.Constraint("Symmetric", 0, 3, 1, 3, -1))
sketch3.addConstraint(Sketcher.Constraint("Diameter", 0, Q("3 mm")))
sketch3.addConstraint(Sketcher.Constraint("DistanceX", 0, 3, -1, 1, Q("15 mm")))
sketch3.addConstraint(Sketcher.Constraint("DistanceY", 1, 3, 0, 3, Q("85 mm")))
pocket2 = doc.addObject("PartDesign::Pocket", "Pocket001")
body.addObject(pocket2)
pocket2.Profile = sketch3
pocket2.Length = 10

doc.recompute()
